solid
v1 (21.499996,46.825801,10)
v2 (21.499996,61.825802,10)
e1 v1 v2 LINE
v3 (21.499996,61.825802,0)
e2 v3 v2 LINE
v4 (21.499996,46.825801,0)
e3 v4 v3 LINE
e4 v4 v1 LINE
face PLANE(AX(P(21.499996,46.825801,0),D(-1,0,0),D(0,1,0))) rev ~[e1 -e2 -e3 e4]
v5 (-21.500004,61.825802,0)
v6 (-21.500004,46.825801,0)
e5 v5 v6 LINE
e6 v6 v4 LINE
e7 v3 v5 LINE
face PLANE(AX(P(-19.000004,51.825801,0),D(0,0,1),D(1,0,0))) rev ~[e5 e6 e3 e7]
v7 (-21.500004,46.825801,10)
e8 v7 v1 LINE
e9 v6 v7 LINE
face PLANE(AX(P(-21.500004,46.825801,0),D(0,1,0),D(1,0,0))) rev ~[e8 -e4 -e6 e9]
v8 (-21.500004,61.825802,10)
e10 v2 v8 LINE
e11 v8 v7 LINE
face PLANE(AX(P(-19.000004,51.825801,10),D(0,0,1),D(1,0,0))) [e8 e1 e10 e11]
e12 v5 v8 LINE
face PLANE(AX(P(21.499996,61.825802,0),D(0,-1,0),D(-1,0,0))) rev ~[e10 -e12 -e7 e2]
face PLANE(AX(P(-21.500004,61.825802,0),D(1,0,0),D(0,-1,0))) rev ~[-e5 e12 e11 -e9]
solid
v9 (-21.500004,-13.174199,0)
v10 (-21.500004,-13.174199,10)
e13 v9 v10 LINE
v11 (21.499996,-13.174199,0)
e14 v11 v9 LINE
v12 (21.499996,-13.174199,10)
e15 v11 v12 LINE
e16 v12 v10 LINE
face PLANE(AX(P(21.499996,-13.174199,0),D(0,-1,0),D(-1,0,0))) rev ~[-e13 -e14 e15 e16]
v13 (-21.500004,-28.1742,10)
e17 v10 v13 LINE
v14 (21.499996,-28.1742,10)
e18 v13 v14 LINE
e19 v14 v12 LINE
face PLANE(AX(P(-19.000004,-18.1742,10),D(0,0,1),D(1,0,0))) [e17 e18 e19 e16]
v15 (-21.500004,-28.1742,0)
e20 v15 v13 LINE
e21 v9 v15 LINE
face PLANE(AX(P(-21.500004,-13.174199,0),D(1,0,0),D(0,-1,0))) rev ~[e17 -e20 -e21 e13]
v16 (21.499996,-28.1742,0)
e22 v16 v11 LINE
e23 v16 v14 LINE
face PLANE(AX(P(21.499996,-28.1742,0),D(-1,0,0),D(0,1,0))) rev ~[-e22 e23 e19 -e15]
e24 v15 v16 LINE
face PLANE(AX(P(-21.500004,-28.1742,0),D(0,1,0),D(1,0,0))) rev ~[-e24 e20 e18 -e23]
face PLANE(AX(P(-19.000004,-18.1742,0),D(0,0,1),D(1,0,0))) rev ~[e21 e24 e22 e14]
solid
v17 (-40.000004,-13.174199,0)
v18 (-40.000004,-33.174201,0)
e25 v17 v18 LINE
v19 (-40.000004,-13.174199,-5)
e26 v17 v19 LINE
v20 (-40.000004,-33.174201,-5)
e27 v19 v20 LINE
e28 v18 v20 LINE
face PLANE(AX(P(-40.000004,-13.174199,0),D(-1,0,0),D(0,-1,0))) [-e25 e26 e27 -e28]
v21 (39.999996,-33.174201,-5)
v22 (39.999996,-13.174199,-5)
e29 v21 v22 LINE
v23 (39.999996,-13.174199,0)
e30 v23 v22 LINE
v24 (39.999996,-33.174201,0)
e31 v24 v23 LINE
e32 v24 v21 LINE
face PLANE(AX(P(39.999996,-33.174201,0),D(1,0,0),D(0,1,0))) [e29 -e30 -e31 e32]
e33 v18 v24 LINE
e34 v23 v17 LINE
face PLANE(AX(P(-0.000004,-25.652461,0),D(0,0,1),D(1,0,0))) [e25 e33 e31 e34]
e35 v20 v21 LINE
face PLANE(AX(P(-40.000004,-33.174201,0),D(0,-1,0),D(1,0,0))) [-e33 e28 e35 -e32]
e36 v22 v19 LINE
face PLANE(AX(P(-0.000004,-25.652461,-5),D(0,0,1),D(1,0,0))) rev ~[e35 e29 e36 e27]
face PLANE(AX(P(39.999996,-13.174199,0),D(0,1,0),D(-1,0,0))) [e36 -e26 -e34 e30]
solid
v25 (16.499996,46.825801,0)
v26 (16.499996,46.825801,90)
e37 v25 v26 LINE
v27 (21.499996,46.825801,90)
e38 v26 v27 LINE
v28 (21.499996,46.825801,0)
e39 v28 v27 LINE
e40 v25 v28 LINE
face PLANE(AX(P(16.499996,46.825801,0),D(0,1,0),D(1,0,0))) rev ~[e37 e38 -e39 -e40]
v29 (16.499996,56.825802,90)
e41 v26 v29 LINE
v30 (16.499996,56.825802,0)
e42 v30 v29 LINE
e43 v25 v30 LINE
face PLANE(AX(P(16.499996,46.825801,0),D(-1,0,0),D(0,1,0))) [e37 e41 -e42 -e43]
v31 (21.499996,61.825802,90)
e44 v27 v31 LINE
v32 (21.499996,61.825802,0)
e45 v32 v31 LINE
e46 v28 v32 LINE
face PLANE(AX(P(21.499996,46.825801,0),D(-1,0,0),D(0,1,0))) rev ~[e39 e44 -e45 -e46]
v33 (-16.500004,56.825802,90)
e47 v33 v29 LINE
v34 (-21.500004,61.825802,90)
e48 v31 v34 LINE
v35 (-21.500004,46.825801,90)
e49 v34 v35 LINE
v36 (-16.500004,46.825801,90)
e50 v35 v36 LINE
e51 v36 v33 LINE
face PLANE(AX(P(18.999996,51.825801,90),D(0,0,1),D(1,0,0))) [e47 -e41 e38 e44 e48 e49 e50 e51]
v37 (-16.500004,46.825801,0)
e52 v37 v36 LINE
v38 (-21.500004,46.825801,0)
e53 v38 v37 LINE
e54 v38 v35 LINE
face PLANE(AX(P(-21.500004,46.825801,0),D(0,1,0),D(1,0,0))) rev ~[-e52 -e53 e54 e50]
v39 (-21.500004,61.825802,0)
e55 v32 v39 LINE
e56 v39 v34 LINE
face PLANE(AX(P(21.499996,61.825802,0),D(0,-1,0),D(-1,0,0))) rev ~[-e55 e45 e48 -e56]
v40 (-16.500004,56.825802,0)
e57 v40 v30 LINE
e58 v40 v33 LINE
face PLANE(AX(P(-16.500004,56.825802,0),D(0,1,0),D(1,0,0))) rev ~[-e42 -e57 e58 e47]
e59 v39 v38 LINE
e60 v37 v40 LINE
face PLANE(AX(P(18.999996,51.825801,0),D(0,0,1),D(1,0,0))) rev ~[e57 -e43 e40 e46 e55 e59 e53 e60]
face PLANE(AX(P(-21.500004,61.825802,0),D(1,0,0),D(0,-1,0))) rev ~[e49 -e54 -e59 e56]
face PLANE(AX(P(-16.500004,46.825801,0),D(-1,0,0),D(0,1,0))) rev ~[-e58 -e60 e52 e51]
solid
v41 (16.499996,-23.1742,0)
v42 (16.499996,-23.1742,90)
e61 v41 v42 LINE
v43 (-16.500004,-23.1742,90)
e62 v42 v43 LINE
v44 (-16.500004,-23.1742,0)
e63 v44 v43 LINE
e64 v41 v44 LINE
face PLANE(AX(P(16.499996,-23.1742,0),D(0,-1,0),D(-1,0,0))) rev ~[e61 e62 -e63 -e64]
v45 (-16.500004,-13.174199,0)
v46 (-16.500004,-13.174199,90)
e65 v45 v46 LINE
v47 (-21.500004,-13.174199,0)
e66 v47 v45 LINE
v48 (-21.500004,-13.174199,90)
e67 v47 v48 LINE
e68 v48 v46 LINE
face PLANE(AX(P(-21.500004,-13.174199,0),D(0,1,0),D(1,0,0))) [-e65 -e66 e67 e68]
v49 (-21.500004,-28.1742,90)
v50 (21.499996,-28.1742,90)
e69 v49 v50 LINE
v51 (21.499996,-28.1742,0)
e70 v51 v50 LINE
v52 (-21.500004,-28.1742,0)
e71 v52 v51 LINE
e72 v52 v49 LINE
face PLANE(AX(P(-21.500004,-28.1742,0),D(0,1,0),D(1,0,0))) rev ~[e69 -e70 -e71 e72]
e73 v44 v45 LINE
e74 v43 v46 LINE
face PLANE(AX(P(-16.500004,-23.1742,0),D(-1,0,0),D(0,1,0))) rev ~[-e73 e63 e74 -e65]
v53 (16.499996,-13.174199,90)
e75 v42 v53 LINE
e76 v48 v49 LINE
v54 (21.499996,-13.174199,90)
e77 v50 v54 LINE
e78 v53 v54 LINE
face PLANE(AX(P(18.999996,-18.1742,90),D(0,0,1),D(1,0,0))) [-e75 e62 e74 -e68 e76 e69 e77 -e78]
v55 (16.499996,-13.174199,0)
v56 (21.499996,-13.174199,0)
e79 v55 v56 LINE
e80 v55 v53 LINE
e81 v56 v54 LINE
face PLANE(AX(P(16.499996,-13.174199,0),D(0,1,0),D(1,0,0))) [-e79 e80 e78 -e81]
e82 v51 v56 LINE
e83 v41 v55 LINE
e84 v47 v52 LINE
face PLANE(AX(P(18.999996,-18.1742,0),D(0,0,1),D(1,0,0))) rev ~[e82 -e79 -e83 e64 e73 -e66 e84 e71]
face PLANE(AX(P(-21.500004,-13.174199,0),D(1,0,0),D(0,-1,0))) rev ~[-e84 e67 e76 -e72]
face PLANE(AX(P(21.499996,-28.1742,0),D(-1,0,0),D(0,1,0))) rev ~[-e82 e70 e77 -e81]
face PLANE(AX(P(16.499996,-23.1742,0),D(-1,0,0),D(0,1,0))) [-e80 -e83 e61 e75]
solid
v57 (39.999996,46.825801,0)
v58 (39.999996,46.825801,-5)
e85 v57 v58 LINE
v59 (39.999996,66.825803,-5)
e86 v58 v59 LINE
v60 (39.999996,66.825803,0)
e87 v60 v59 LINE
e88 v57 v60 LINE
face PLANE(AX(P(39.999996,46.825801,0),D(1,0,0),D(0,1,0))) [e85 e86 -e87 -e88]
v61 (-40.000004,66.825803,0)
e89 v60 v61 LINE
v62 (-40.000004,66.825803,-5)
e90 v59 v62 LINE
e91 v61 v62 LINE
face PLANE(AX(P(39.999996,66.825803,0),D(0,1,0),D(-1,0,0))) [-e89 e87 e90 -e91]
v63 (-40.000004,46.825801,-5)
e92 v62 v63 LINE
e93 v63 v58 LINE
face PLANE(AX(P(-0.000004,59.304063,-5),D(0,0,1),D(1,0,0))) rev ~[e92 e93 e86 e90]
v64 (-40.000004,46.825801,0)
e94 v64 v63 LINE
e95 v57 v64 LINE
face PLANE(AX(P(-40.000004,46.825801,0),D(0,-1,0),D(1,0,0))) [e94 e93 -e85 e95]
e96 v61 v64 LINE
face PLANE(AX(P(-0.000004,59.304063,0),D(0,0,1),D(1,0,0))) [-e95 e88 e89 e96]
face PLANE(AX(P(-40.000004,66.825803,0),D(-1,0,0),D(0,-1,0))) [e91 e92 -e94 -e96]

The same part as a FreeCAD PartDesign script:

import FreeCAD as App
import Part
import Sketcher

doc = App.newDocument("Part")
params = doc.addObject("Spreadsheet::Sheet", "Params")
for row, (alias, value) in enumerate([
    ("sketch1_width", "80 mm"),
    ("sketch1_height", "20.000002 mm"),
    ("pad1_length", "5 mm"),
    ("sketch2_width", "80 mm"),
    ("sketch2_height", "20.000002 mm"),
    ("sketch2_width2", "18.5 mm"),
    ("pad2_length", "5 mm"),
    ("sketch3_width", "43 mm"),
    ("sketch3_height", "15.000001 mm"),
    ("pad3_length", "10 mm"),
    ("sketch4_width", "43 mm"),
    ("sketch4_height", "15.000001 mm"),
    ("pad4_length", "10 mm"),
    ("sketch5_width", "33 mm"),
    ("sketch5_width2", "5 mm"),
    ("sketch5_height", "10.000001 mm"),
    ("sketch5_height2", "15.000001 mm"),
    ("pad5_length", "90 mm"),
    ("sketch6_width", "5 mm"),
    ("sketch6_width2", "43 mm"),
    ("sketch6_height", "10.000001 mm"),
    ("sketch6_height2", "15.000001 mm"),
    ("pad6_length", "90 mm"),
], start=1):
    params.set(f"A{row}", alias)
    params.set(f"B{row}", "=" + value)
    params.setAlias(f"B{row}", alias)

body = doc.addObject("PartDesign::Body", "Body")

# Sketch on XY plane
sketch1 = doc.addObject("Sketcher::SketchObject", "Sketch")
body.addObject(sketch1)
sketch1.AttachmentSupport = (doc.XY_Plane, [""])
sketch1.MapMode = "FlatFace"
sketch1.addGeometry(Part.LineSegment(App.Vector(-40, -13, 0), App.Vector(-40, -33, 0)), False)
sketch1.addGeometry(Part.LineSegment(App.Vector(-40, -33, 0), App.Vector(40, -33, 0)), False)
sketch1.addGeometry(Part.LineSegment(App.Vector(40, -33, 0), App.Vector(40, -13, 0)), False)
sketch1.addGeometry(Part.LineSegment(App.Vector(40, -13, 0), App.Vector(-40, -13, 0)), False)
sketch1.addConstraint(Sketcher.Constraint("Coincident", 0, 2, 1, 1))
sketch1.addConstraint(Sketcher.Constraint("Coincident", 1, 2, 2, 1))
sketch1.addConstraint(Sketcher.Constraint("Coincident", 2, 2, 3, 1))
sketch1.addConstraint(Sketcher.Constraint("Coincident", 3, 2, 0, 1))
sketch1.addConstraint(Sketcher.Constraint("Vertical", 0))
sketch1.addConstraint(Sketcher.Constraint("Horizontal", 1))
sketch1.addConstraint(Sketcher.Constraint("Vertical", 2))
sketch1.addConstraint(Sketcher.Constraint("Horizontal", 3))
sketch1.addConstraint(Sketcher.Constraint("DistanceX", 1, 1, 1, 2, 80.0))
sketch1.addConstraint(Sketcher.Constraint("DistanceY", 0, 2, 0, 1, 20.000002))
sketch1.addConstraint(Sketcher.Constraint("DistanceY", 0, 2, -1, 1, 33.174201))
sketch1.addConstraint(Sketcher.Constraint("DistanceX", 0, 2, -1, 1, 40.000004))
sketch1.setExpression("Constraints[8]", "Params.sketch1_width")
sketch1.setExpression("Constraints[9]", "Params.sketch1_height")
pad1 = doc.addObject("PartDesign::Pad", "Pad")
body.addObject(pad1)
pad1.Profile = sketch1
pad1.setExpression("Length", "Params.pad1_length")
pad1.Reversed = True
body2 = doc.addObject("PartDesign::Body", "Body001")

# Sketch on XY plane
sketch2 = doc.addObject("Sketcher::SketchObject", "Sketch001")
body2.addObject(sketch2)
sketch2.AttachmentSupport = (doc.getObject("XY_Plane001"), [""])
sketch2.MapMode = "FlatFace"
sketch2.addGeometry(Part.LineSegment(App.Vector(40, 47, 0), App.Vector(40, 67, 0)), False)
sketch2.addGeometry(Part.LineSegment(App.Vector(40, 67, 0), App.Vector(-40, 67, 0)), False)
sketch2.addGeometry(Part.LineSegment(App.Vector(-40, 67, 0), App.Vector(-40, 47, 0)), False)
sketch2.addGeometry(Part.LineSegment(App.Vector(-40, 47, 0), App.Vector(-22, 47, 0)), False)
sketch2.addGeometry(Part.LineSegment(App.Vector(-22, 47, 0), App.Vector(40, 47, 0)), False)
sketch2.addConstraint(Sketcher.Constraint("Coincident", 0, 2, 1, 1))
sketch2.addConstraint(Sketcher.Constraint("Coincident", 1, 2, 2, 1))
sketch2.addConstraint(Sketcher.Constraint("Coincident", 2, 2, 3, 1))
sketch2.addConstraint(Sketcher.Constraint("Coincident", 3, 2, 4, 1))
sketch2.addConstraint(Sketcher.Constraint("Coincident", 4, 2, 0, 1))
sketch2.addConstraint(Sketcher.Constraint("Vertical", 0))
sketch2.addConstraint(Sketcher.Constraint("Horizontal", 1))
sketch2.addConstraint(Sketcher.Constraint("Vertical", 2))
sketch2.addConstraint(Sketcher.Constraint("Horizontal", 3))
sketch2.addConstraint(Sketcher.Constraint("Horizontal", 4))
sketch2.addConstraint(Sketcher.Constraint("DistanceX", 1, 2, 1, 1, 80.0))
sketch2.addConstraint(Sketcher.Constraint("DistanceY", 0, 1, 0, 2, 20.000002))
sketch2.addConstraint(Sketcher.Constraint("DistanceX", 3, 1, 3, 2, 18.5))
sketch2.addConstraint(Sketcher.Constraint("DistanceY", -1, 1, 2, 2, 46.825801))
sketch2.addConstraint(Sketcher.Constraint("DistanceX", -1, 1, 0, 2, 39.999996))
sketch2.setExpression("Constraints[10]", "Params.sketch2_width")
sketch2.setExpression("Constraints[11]", "Params.sketch2_height")
sketch2.setExpression("Constraints[12]", "Params.sketch2_width2")
pad2 = doc.addObject("PartDesign::Pad", "Pad001")
body2.addObject(pad2)
pad2.Profile = sketch2
pad2.setExpression("Length", "Params.pad2_length")
pad2.Reversed = True
body3 = doc.addObject("PartDesign::Body", "Body002")

# Sketch on XY plane
sketch3 = doc.addObject("Sketcher::SketchObject", "Sketch002")
body3.addObject(sketch3)
sketch3.AttachmentSupport = (doc.getObject("XY_Plane002"), [""])
sketch3.MapMode = "FlatFace"
sketch3.addGeometry(Part.LineSegment(App.Vector(-22, -13, 0), App.Vector(-22, -28, 0)), False)
sketch3.addGeometry(Part.LineSegment(App.Vector(-22, -28, 0), App.Vector(21, -28, 0)), False)
sketch3.addGeometry(Part.LineSegment(App.Vector(21, -28, 0), App.Vector(21, -13, 0)), False)
sketch3.addGeometry(Part.LineSegment(App.Vector(21, -13, 0), App.Vector(-22, -13, 0)), False)
sketch3.addConstraint(Sketcher.Constraint("Coincident", 0, 2, 1, 1))
sketch3.addConstraint(Sketcher.Constraint("Coincident", 1, 2, 2, 1))
sketch3.addConstraint(Sketcher.Constraint("Coincident", 2, 2, 3, 1))
sketch3.addConstraint(Sketcher.Constraint("Coincident", 3, 2, 0, 1))
sketch3.addConstraint(Sketcher.Constraint("Vertical", 0))
sketch3.addConstraint(Sketcher.Constraint("Horizontal", 1))
sketch3.addConstraint(Sketcher.Constraint("Vertical", 2))
sketch3.addConstraint(Sketcher.Constraint("Horizontal", 3))
sketch3.addConstraint(Sketcher.Constraint("DistanceX", 1, 1, 1, 2, 43.0))
sketch3.addConstraint(Sketcher.Constraint("DistanceY", 0, 2, 0, 1, 15.000001))
sketch3.addConstraint(Sketcher.Constraint("DistanceY", 0, 2, -1, 1, 28.1742))
sketch3.addConstraint(Sketcher.Constraint("DistanceX", 0, 2, -1, 1, 21.500004))
sketch3.setExpression("Constraints[8]", "Params.sketch3_width")
sketch3.setExpression("Constraints[9]", "Params.sketch3_height")
pad3 = doc.addObject("PartDesign::Pad", "Pad002")
body3.addObject(pad3)
pad3.Profile = sketch3
pad3.setExpression("Length", "Params.pad3_length")
body4 = doc.addObject("PartDesign::Body", "Body003")

# Sketch on XY plane
sketch4 = doc.addObject("Sketcher::SketchObject", "Sketch003")
body4.addObject(sketch4)
sketch4.AttachmentSupport = (doc.getObject("XY_Plane003"), [""])
sketch4.MapMode = "FlatFace"
sketch4.addGeometry(Part.LineSegment(App.Vector(-22, 62, 0), App.Vector(-22, 47, 0)), False)
sketch4.addGeometry(Part.LineSegment(App.Vector(-22, 47, 0), App.Vector(21, 47, 0)), False)
sketch4.addGeometry(Part.LineSegment(App.Vector(21, 47, 0), App.Vector(21, 62, 0)), False)
sketch4.addGeometry(Part.LineSegment(App.Vector(21, 62, 0), App.Vector(-22, 62, 0)), False)
sketch4.addConstraint(Sketcher.Constraint("Coincident", 0, 2, 1, 1))
sketch4.addConstraint(Sketcher.Constraint("Coincident", 1, 2, 2, 1))
sketch4.addConstraint(Sketcher.Constraint("Coincident", 2, 2, 3, 1))
sketch4.addConstraint(Sketcher.Constraint("Coincident", 3, 2, 0, 1))
sketch4.addConstraint(Sketcher.Constraint("Vertical", 0))
sketch4.addConstraint(Sketcher.Constraint("Horizontal", 1))
sketch4.addConstraint(Sketcher.Constraint("Vertical", 2))
sketch4.addConstraint(Sketcher.Constraint("Horizontal", 3))
sketch4.addConstraint(Sketcher.Constraint("DistanceX", 1, 1, 1, 2, 43.0))
sketch4.addConstraint(Sketcher.Constraint("DistanceY", 0, 2, 0, 1, 15.000001))
sketch4.addConstraint(Sketcher.Constraint("DistanceY", -1, 1, 0, 2, 46.825801))
sketch4.addConstraint(Sketcher.Constraint("DistanceX", 0, 2, -1, 1, 21.500004))
sketch4.setExpression("Constraints[8]", "Params.sketch4_width")
sketch4.setExpression("Constraints[9]", "Params.sketch4_height")
pad4 = doc.addObject("PartDesign::Pad", "Pad003")
body4.addObject(pad4)
pad4.Profile = sketch4
pad4.setExpression("Length", "Params.pad4_length")
body5 = doc.addObject("PartDesign::Body", "Body004")

# Sketch on XY plane
sketch5 = doc.addObject("Sketcher::SketchObject", "Sketch004")
body5.addObject(sketch5)
sketch5.AttachmentSupport = (doc.getObject("XY_Plane004"), [""])
sketch5.MapMode = "FlatFace"
sketch5.addGeometry(Part.LineSegment(App.Vector(16, -13, 0), App.Vector(16, -23, 0)), False)
sketch5.addGeometry(Part.LineSegment(App.Vector(16, -23, 0), App.Vector(-17, -23, 0)), False)
sketch5.addGeometry(Part.LineSegment(App.Vector(-17, -23, 0), App.Vector(-17, -13, 0)), False)
sketch5.addGeometry(Part.LineSegment(App.Vector(-17, -13, 0), App.Vector(-22, -13, 0)), False)
sketch5.addGeometry(Part.LineSegment(App.Vector(-22, -13, 0), App.Vector(-22, -28, 0)), False)
sketch5.addGeometry(Part.LineSegment(App.Vector(-22, -28, 0), App.Vector(21, -28, 0)), False)
sketch5.addGeometry(Part.LineSegment(App.Vector(21, -28, 0), App.Vector(21, -13, 0)), False)
sketch5.addGeometry(Part.LineSegment(App.Vector(21, -13, 0), App.Vector(16, -13, 0)), False)
sketch5.addConstraint(Sketcher.Constraint("Coincident", 0, 2, 1, 1))
sketch5.addConstraint(Sketcher.Constraint("Coincident", 1, 2, 2, 1))
sketch5.addConstraint(Sketcher.Constraint("Coincident", 2, 2, 3, 1))
sketch5.addConstraint(Sketcher.Constraint("Coincident", 3, 2, 4, 1))
sketch5.addConstraint(Sketcher.Constraint("Coincident", 4, 2, 5, 1))
sketch5.addConstraint(Sketcher.Constraint("Coincident", 5, 2, 6, 1))
sketch5.addConstraint(Sketcher.Constraint("Coincident", 6, 2, 7, 1))
sketch5.addConstraint(Sketcher.Constraint("Coincident", 7, 2, 0, 1))
sketch5.addConstraint(Sketcher.Constraint("Vertical", 0))
sketch5.addConstraint(Sketcher.Constraint("Horizontal", 1))
sketch5.addConstraint(Sketcher.Constraint("Vertical", 2))
sketch5.addConstraint(Sketcher.Constraint("Horizontal", 3))
sketch5.addConstraint(Sketcher.Constraint("Vertical", 4))
sketch5.addConstraint(Sketcher.Constraint("Horizontal", 5))
sketch5.addConstraint(Sketcher.Constraint("Vertical", 6))
sketch5.addConstraint(Sketcher.Constraint("Horizontal", 7))
sketch5.addConstraint(Sketcher.Constraint("Symmetric", 3, 2, 6, 2, -2))
sketch5.addConstraint(Sketcher.Constraint("Equal", 3, 7))
sketch5.addConstraint(Sketcher.Constraint("DistanceX", 1, 2, 1, 1, 33.0))
sketch5.addConstraint(Sketcher.Constraint("DistanceX", 3, 2, 3, 1, 5.0))
sketch5.addConstraint(Sketcher.Constraint("DistanceY", 0, 2, 0, 1, 10.000001))
sketch5.addConstraint(Sketcher.Constraint("DistanceY", 4, 2, 4, 1, 15.000001))
sketch5.addConstraint(Sketcher.Constraint("DistanceY", 0, 2, -1, 1, 23.1742))
sketch5.setExpression("Constraints[18]", "Params.sketch5_width")
sketch5.setExpression("Constraints[19]", "Params.sketch5_width2")
sketch5.setExpression("Constraints[20]", "Params.sketch5_height")
sketch5.setExpression("Constraints[21]", "Params.sketch5_height2")
pad5 = doc.addObject("PartDesign::Pad", "Pad004")
body5.addObject(pad5)
pad5.Profile = sketch5
pad5.setExpression("Length", "Params.pad5_length")
body6 = doc.addObject("PartDesign::Body", "Body005")

# Sketch on XY plane
sketch6 = doc.addObject("Sketcher::SketchObject", "Sketch005")
body6.addObject(sketch6)
sketch6.AttachmentSupport = (doc.getObject("XY_Plane005"), [""])
sketch6.MapMode = "FlatFace"
sketch6.addGeometry(Part.LineSegment(App.Vector(16, 57, 0), App.Vector(16, 47, 0)), False)
sketch6.addGeometry(Part.LineSegment(App.Vector(16, 47, 0), App.Vector(21, 47, 0)), False)
sketch6.addGeometry(Part.LineSegment(App.Vector(21, 47, 0), App.Vector(21, 62, 0)), False)
sketch6.addGeometry(Part.LineSegment(App.Vector(21, 62, 0), App.Vector(-22, 62, 0)), False)
sketch6.addGeometry(Part.LineSegment(App.Vector(-22, 62, 0), App.Vector(-22, 47, 0)), False)
sketch6.addGeometry(Part.LineSegment(App.Vector(-22, 47, 0), App.Vector(-17, 47, 0)), False)
sketch6.addGeometry(Part.LineSegment(App.Vector(-17, 47, 0), App.Vector(-17, 57, 0)), False)
sketch6.addGeometry(Part.LineSegment(App.Vector(-17, 57, 0), App.Vector(16, 57, 0)), False)
sketch6.addConstraint(Sketcher.Constraint("Coincident", 0, 2, 1, 1))
sketch6.addConstraint(Sketcher.Constraint("Coincident", 1, 2, 2, 1))
sketch6.addConstraint(Sketcher.Constraint("Coincident", 2, 2, 3, 1))
sketch6.addConstraint(Sketcher.Constraint("Coincident", 3, 2, 4, 1))
sketch6.addConstraint(Sketcher.Constraint("Coincident", 4, 2, 5, 1))
sketch6.addConstraint(Sketcher.Constraint("Coincident", 5, 2, 6, 1))
sketch6.addConstraint(Sketcher.Constraint("Coincident", 6, 2, 7, 1))
sketch6.addConstraint(Sketcher.Constraint("Coincident", 7, 2, 0, 1))
sketch6.addConstraint(Sketcher.Constraint("Vertical", 0))
sketch6.addConstraint(Sketcher.Constraint("Horizontal", 1))
sketch6.addConstraint(Sketcher.Constraint("Vertical", 2))
sketch6.addConstraint(Sketcher.Constraint("Horizontal", 3))
sketch6.addConstraint(Sketcher.Constraint("Vertical", 4))
sketch6.addConstraint(Sketcher.Constraint("Horizontal", 5))
sketch6.addConstraint(Sketcher.Constraint("Vertical", 6))
sketch6.addConstraint(Sketcher.Constraint("Horizontal", 7))
sketch6.addConstraint(Sketcher.Constraint("Symmetric", 1, 2, 4, 2, -2))
sketch6.addConstraint(Sketcher.Constraint("Equal", 1, 5))
sketch6.addConstraint(Sketcher.Constraint("DistanceX", 1, 1, 1, 2, 5.0))
sketch6.addConstraint(Sketcher.Constraint("DistanceX", 3, 2, 3, 1, 43.0))
sketch6.addConstraint(Sketcher.Constraint("DistanceY", 0, 2, 0, 1, 10.000001))
sketch6.addConstraint(Sketcher.Constraint("DistanceY", 2, 1, 2, 2, 15.000001))
sketch6.addConstraint(Sketcher.Constraint("DistanceY", -1, 1, 0, 2, 46.825801))
sketch6.setExpression("Constraints[18]", "Params.sketch6_width")
sketch6.setExpression("Constraints[19]", "Params.sketch6_width2")
sketch6.setExpression("Constraints[20]", "Params.sketch6_height")
sketch6.setExpression("Constraints[21]", "Params.sketch6_height2")
pad6 = doc.addObject("PartDesign::Pad", "Pad005")
body6.addObject(pad6)
pad6.Profile = sketch6
pad6.setExpression("Length", "Params.pad6_length")

doc.recompute()
